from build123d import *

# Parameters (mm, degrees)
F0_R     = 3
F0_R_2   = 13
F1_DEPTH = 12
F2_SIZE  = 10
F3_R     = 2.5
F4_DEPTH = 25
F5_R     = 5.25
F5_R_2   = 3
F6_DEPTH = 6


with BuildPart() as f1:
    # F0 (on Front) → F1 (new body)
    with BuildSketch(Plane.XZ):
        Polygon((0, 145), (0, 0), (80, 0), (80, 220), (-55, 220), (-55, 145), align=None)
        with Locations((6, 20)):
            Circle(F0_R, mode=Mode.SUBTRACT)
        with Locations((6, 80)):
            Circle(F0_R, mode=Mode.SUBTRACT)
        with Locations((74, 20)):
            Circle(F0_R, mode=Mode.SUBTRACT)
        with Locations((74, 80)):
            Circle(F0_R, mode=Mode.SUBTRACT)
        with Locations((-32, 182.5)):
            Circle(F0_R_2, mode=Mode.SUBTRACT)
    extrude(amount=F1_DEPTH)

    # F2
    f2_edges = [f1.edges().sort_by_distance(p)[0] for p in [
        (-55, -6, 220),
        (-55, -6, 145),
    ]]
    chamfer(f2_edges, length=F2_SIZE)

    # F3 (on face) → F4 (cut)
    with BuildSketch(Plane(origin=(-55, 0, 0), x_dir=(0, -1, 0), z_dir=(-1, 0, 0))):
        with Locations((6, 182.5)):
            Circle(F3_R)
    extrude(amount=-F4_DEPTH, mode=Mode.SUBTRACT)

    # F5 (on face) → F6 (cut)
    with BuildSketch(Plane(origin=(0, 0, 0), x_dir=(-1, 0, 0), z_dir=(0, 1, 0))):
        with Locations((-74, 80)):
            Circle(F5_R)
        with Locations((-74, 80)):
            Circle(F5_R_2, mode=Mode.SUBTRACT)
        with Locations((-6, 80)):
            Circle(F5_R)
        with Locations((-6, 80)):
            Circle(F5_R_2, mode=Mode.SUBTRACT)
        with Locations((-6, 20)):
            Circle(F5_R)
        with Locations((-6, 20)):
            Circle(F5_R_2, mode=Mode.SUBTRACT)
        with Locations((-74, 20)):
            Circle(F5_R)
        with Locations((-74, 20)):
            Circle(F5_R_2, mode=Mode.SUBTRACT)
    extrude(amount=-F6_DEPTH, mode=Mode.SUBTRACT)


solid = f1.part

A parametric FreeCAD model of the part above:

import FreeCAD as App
import Part
import Sketcher
from FreeCAD import Vector
Q = App.Units.Quantity


def edges_at(feature, points):
    """Names of the edges that pass closest to the given points."""
    edges = feature.Shape.Edges
    near = lambda p: min(range(len(edges)), key=lambda i: edges[i].distToShape(Part.Vertex(*p))[0])
    return sorted({f"Edge{near(p) + 1}" for p in points})

doc = App.newDocument("Part")
params = doc.addObject("Spreadsheet::Sheet", "Params")
for row, (alias, value) in enumerate([
    ("sketch1_diameter", "6 mm"),
    ("sketch1_diameter2", "26 mm"),
    ("sketch1_width", "80 mm"),
    ("sketch1_width2", "135 mm"),
    ("sketch1_height", "145 mm"),
    ("pad1_length", "12 mm"),
    ("chamfer_size", "10 mm"),
    ("sketch2_diameter", "5 mm"),
    ("pocket1_length", "25 mm"),
    ("sketch3_diameter", "6 mm"),
    ("sketch3_diameter2", "10.5 mm"),
    ("pocket2_length", "6 mm"),
], start=1):
    params.set(f"A{row}", alias)
    params.set(f"B{row}", "=" + value)
    params.setAlias(f"B{row}", alias)

body = doc.addObject("PartDesign::Body", "Body")

sketch1 = body.newObject("Sketcher::SketchObject", "Sketch")
sketch1.AttachmentSupport = (doc.getObject("XZ_Plane"), [""])
sketch1.MapMode = "FlatFace"
sketch1.addGeometry([
    Part.LineSegment(Vector(0, 145, 0), Vector(0, 0, 0)),
    Part.LineSegment(Vector(0, 0, 0), Vector(80, 0, 0)),
    Part.LineSegment(Vector(80, 0, 0), Vector(80, 220, 0)),
    Part.LineSegment(Vector(80, 220, 0), Vector(-55, 220, 0)),
    Part.LineSegment(Vector(-55, 220, 0), Vector(-55, 145, 0)),
    Part.LineSegment(Vector(-55, 145, 0), Vector(0, 145, 0)),
    Part.Circle(Vector(6, 20, 0), Vector(0, 0, 1), 3),
    Part.Circle(Vector(6, 80, 0), Vector(0, 0, 1), 3),
    Part.Circle(Vector(74, 20, 0), Vector(0, 0, 1), 3),
    Part.Circle(Vector(74, 80, 0), Vector(0, 0, 1), 3),
    Part.Circle(Vector(-32, 182.5, 0), Vector(0, 0, 1), 13),
], False)
sketch1.addConstraint([
    Sketcher.Constraint("Coincident", 0, 2, 1, 1),
    Sketcher.Constraint("Coincident", 1, 2, 2, 1),
    Sketcher.Constraint("Coincident", 2, 2, 3, 1),
    Sketcher.Constraint("Coincident", 3, 2, 4, 1),
    Sketcher.Constraint("Coincident", 4, 2, 5, 1),
    Sketcher.Constraint("Coincident", 5, 2, 0, 1),
    Sketcher.Constraint("Vertical", 0),
    Sketcher.Constraint("Horizontal", 1),
    Sketcher.Constraint("Vertical", 2),
    Sketcher.Constraint("Horizontal", 3),
    Sketcher.Constraint("Vertical", 4),
    Sketcher.Constraint("Horizontal", 5),
    Sketcher.Constraint("Coincident", 0, 2, -1, 1),
    Sketcher.Constraint("Equal", 6, 7),
    Sketcher.Constraint("Equal", 7, 8),
    Sketcher.Constraint("Equal", 8, 9),
    Sketcher.Constraint("Horizontal", 6, 3, 8, 3),
    Sketcher.Constraint("Horizontal", 7, 3, 9, 3),
    Sketcher.Constraint("Vertical", 6, 3, 7, 3),
    Sketcher.Constraint("Vertical", 8, 3, 9, 3),
    Sketcher.Constraint("Diameter", 6, Q("6 mm")),
    Sketcher.Constraint("Diameter", 10, Q("26 mm")),
    Sketcher.Constraint("DistanceX", 1, 1, 1, 2, Q("80 mm")),
    Sketcher.Constraint("DistanceX", 3, 2, 3, 1, Q("135 mm")),
    Sketcher.Constraint("DistanceY", 0, 2, 0, 1, Q("145 mm")),
    Sketcher.Constraint("DistanceY", 2, 1, 2, 2, Q("220 mm")),
    Sketcher.Constraint("DistanceX", -1, 1, 6, 3, Q("6 mm")),
    Sketcher.Constraint("DistanceY", -1, 1, 6, 3, Q("20 mm")),
    Sketcher.Constraint("DistanceY", -1, 1, 7, 3, Q("80 mm")),
    Sketcher.Constraint("DistanceX", -1, 1, 8, 3, Q("74 mm")),
    Sketcher.Constraint("DistanceX", 10, 3, -1, 1, Q("32 mm")),
    Sketcher.Constraint("DistanceY", -1, 1, 10, 3, Q("182.5 mm")),
])
sketch1.setExpression("Constraints[20]", "Params.sketch1_diameter")
sketch1.setExpression("Constraints[21]", "Params.sketch1_diameter2")
sketch1.setExpression("Constraints[22]", "Params.sketch1_width")
sketch1.setExpression("Constraints[23]", "Params.sketch1_width2")
sketch1.setExpression("Constraints[24]", "Params.sketch1_height")
pad1 = body.newObject("PartDesign::Pad", "Pad")
pad1.Profile = sketch1
pad1.setExpression("Length", "Params.pad1_length")
doc.recompute()

chamfer = body.newObject("PartDesign::Chamfer", "Chamfer")
chamfer.Base = (pad1, edges_at(pad1, [(-55, -6, 220), (-55, -6, 145)]))
chamfer.setExpression("Size", "Params.chamfer_size")

sketch2 = body.newObject("Sketcher::SketchObject", "Sketch001")
sketch2.AttachmentSupport = (doc.getObject("YZ_Plane"), [""])
sketch2.MapMode = "FlatFace"
sketch2.AttachmentOffset = App.Placement(Vector(0, 0, -55), App.Rotation())
sketch2.addGeometry(Part.Circle(Vector(-6, 182.5, 0), Vector(0, 0, 1), 2.5), False)
sketch2.addConstraint([
    Sketcher.Constraint("Diameter", 0, Q("5 mm")),
    Sketcher.Constraint("DistanceX", 0, 3, -1, 1, Q("6 mm")),
    Sketcher.Constraint("DistanceY", -1, 1, 0, 3, Q("182.5 mm")),
])
sketch2.setExpression("Constraints[0]", "Params.sketch2_diameter")
pocket1 = body.newObject("PartDesign::Pocket", "Pocket")
pocket1.Profile = sketch2
pocket1.setExpression("Length", "Params.pocket1_length")
pocket1.Reversed = True

sketch3 = body.newObject("Sketcher::SketchObject", "Sketch002")
sketch3.AttachmentSupport = (doc.getObject("XZ_Plane"), [""])
sketch3.MapMode = "FlatFace"
sketch3.addGeometry([
    Part.Circle(Vector(74, 80, 0), Vector(0, 0, 1), 5.25),
    Part.Circle(Vector(74, 80, 0), Vector(0, 0, 1), 3),
    Part.Circle(Vector(6, 80, 0), Vector(0, 0, 1), 5.25),
    Part.Circle(Vector(6, 80, 0), Vector(0, 0, 1), 3),
    Part.Circle(Vector(6, 20, 0), Vector(0, 0, 1), 5.25),
    Part.Circle(Vector(6, 20, 0), Vector(0, 0, 1), 3),
    Part.Circle(Vector(74, 20, 0), Vector(0, 0, 1), 5.25),
    Part.Circle(Vector(74, 20, 0), Vector(0, 0, 1), 3),
], False)
sketch3.addConstraint([
    Sketcher.Constraint("Coincident", 1, 3, 0, 3),
    Sketcher.Constraint("Coincident", 3, 3, 2, 3),
    Sketcher.Constraint("Coincident", 5, 3, 4, 3),
    Sketcher.Constraint("Coincident", 7, 3, 6, 3),
    Sketcher.Constraint("Equal", 0, 2),
    Sketcher.Constraint("Equal", 1, 3),
    Sketcher.Constraint("Equal", 2, 4),
    Sketcher.Constraint("Equal", 3, 5),
    Sketcher.Constraint("Equal", 4, 6),
    Sketcher.Constraint("Equal", 5, 7),
    Sketcher.Constraint("Horizontal", 1, 3, 2, 3),
    Sketcher.Constraint("Horizontal", 5, 3, 6, 3),
    Sketcher.Constraint("Vertical", 3, 3, 4, 3),
    Sketcher.Constraint("Vertical", 1, 3, 6, 3),
    Sketcher.Constraint("Diameter", 1, Q("6 mm")),
    Sketcher.Constraint("Diameter", 0, Q("10.5 mm")),
    Sketcher.Constraint("DistanceX", -1, 1, 0, 3, Q("74 mm")),
    Sketcher.Constraint("DistanceY", -1, 1, 0, 3, Q("80 mm")),
    Sketcher.Constraint("DistanceX", -1, 1, 2, 3, Q("6 mm")),
    Sketcher.Constraint("DistanceY", -1, 1, 4, 3, Q("20 mm")),
])
sketch3.setExpression("Constraints[14]", "Params.sketch3_diameter")
sketch3.setExpression("Constraints[15]", "Params.sketch3_diameter2")
pocket2 = body.newObject("PartDesign::Pocket", "Pocket001")
pocket2.Profile = sketch3
pocket2.setExpression("Length", "Params.pocket2_length")
pocket2.Reversed = True

doc.recompute()
